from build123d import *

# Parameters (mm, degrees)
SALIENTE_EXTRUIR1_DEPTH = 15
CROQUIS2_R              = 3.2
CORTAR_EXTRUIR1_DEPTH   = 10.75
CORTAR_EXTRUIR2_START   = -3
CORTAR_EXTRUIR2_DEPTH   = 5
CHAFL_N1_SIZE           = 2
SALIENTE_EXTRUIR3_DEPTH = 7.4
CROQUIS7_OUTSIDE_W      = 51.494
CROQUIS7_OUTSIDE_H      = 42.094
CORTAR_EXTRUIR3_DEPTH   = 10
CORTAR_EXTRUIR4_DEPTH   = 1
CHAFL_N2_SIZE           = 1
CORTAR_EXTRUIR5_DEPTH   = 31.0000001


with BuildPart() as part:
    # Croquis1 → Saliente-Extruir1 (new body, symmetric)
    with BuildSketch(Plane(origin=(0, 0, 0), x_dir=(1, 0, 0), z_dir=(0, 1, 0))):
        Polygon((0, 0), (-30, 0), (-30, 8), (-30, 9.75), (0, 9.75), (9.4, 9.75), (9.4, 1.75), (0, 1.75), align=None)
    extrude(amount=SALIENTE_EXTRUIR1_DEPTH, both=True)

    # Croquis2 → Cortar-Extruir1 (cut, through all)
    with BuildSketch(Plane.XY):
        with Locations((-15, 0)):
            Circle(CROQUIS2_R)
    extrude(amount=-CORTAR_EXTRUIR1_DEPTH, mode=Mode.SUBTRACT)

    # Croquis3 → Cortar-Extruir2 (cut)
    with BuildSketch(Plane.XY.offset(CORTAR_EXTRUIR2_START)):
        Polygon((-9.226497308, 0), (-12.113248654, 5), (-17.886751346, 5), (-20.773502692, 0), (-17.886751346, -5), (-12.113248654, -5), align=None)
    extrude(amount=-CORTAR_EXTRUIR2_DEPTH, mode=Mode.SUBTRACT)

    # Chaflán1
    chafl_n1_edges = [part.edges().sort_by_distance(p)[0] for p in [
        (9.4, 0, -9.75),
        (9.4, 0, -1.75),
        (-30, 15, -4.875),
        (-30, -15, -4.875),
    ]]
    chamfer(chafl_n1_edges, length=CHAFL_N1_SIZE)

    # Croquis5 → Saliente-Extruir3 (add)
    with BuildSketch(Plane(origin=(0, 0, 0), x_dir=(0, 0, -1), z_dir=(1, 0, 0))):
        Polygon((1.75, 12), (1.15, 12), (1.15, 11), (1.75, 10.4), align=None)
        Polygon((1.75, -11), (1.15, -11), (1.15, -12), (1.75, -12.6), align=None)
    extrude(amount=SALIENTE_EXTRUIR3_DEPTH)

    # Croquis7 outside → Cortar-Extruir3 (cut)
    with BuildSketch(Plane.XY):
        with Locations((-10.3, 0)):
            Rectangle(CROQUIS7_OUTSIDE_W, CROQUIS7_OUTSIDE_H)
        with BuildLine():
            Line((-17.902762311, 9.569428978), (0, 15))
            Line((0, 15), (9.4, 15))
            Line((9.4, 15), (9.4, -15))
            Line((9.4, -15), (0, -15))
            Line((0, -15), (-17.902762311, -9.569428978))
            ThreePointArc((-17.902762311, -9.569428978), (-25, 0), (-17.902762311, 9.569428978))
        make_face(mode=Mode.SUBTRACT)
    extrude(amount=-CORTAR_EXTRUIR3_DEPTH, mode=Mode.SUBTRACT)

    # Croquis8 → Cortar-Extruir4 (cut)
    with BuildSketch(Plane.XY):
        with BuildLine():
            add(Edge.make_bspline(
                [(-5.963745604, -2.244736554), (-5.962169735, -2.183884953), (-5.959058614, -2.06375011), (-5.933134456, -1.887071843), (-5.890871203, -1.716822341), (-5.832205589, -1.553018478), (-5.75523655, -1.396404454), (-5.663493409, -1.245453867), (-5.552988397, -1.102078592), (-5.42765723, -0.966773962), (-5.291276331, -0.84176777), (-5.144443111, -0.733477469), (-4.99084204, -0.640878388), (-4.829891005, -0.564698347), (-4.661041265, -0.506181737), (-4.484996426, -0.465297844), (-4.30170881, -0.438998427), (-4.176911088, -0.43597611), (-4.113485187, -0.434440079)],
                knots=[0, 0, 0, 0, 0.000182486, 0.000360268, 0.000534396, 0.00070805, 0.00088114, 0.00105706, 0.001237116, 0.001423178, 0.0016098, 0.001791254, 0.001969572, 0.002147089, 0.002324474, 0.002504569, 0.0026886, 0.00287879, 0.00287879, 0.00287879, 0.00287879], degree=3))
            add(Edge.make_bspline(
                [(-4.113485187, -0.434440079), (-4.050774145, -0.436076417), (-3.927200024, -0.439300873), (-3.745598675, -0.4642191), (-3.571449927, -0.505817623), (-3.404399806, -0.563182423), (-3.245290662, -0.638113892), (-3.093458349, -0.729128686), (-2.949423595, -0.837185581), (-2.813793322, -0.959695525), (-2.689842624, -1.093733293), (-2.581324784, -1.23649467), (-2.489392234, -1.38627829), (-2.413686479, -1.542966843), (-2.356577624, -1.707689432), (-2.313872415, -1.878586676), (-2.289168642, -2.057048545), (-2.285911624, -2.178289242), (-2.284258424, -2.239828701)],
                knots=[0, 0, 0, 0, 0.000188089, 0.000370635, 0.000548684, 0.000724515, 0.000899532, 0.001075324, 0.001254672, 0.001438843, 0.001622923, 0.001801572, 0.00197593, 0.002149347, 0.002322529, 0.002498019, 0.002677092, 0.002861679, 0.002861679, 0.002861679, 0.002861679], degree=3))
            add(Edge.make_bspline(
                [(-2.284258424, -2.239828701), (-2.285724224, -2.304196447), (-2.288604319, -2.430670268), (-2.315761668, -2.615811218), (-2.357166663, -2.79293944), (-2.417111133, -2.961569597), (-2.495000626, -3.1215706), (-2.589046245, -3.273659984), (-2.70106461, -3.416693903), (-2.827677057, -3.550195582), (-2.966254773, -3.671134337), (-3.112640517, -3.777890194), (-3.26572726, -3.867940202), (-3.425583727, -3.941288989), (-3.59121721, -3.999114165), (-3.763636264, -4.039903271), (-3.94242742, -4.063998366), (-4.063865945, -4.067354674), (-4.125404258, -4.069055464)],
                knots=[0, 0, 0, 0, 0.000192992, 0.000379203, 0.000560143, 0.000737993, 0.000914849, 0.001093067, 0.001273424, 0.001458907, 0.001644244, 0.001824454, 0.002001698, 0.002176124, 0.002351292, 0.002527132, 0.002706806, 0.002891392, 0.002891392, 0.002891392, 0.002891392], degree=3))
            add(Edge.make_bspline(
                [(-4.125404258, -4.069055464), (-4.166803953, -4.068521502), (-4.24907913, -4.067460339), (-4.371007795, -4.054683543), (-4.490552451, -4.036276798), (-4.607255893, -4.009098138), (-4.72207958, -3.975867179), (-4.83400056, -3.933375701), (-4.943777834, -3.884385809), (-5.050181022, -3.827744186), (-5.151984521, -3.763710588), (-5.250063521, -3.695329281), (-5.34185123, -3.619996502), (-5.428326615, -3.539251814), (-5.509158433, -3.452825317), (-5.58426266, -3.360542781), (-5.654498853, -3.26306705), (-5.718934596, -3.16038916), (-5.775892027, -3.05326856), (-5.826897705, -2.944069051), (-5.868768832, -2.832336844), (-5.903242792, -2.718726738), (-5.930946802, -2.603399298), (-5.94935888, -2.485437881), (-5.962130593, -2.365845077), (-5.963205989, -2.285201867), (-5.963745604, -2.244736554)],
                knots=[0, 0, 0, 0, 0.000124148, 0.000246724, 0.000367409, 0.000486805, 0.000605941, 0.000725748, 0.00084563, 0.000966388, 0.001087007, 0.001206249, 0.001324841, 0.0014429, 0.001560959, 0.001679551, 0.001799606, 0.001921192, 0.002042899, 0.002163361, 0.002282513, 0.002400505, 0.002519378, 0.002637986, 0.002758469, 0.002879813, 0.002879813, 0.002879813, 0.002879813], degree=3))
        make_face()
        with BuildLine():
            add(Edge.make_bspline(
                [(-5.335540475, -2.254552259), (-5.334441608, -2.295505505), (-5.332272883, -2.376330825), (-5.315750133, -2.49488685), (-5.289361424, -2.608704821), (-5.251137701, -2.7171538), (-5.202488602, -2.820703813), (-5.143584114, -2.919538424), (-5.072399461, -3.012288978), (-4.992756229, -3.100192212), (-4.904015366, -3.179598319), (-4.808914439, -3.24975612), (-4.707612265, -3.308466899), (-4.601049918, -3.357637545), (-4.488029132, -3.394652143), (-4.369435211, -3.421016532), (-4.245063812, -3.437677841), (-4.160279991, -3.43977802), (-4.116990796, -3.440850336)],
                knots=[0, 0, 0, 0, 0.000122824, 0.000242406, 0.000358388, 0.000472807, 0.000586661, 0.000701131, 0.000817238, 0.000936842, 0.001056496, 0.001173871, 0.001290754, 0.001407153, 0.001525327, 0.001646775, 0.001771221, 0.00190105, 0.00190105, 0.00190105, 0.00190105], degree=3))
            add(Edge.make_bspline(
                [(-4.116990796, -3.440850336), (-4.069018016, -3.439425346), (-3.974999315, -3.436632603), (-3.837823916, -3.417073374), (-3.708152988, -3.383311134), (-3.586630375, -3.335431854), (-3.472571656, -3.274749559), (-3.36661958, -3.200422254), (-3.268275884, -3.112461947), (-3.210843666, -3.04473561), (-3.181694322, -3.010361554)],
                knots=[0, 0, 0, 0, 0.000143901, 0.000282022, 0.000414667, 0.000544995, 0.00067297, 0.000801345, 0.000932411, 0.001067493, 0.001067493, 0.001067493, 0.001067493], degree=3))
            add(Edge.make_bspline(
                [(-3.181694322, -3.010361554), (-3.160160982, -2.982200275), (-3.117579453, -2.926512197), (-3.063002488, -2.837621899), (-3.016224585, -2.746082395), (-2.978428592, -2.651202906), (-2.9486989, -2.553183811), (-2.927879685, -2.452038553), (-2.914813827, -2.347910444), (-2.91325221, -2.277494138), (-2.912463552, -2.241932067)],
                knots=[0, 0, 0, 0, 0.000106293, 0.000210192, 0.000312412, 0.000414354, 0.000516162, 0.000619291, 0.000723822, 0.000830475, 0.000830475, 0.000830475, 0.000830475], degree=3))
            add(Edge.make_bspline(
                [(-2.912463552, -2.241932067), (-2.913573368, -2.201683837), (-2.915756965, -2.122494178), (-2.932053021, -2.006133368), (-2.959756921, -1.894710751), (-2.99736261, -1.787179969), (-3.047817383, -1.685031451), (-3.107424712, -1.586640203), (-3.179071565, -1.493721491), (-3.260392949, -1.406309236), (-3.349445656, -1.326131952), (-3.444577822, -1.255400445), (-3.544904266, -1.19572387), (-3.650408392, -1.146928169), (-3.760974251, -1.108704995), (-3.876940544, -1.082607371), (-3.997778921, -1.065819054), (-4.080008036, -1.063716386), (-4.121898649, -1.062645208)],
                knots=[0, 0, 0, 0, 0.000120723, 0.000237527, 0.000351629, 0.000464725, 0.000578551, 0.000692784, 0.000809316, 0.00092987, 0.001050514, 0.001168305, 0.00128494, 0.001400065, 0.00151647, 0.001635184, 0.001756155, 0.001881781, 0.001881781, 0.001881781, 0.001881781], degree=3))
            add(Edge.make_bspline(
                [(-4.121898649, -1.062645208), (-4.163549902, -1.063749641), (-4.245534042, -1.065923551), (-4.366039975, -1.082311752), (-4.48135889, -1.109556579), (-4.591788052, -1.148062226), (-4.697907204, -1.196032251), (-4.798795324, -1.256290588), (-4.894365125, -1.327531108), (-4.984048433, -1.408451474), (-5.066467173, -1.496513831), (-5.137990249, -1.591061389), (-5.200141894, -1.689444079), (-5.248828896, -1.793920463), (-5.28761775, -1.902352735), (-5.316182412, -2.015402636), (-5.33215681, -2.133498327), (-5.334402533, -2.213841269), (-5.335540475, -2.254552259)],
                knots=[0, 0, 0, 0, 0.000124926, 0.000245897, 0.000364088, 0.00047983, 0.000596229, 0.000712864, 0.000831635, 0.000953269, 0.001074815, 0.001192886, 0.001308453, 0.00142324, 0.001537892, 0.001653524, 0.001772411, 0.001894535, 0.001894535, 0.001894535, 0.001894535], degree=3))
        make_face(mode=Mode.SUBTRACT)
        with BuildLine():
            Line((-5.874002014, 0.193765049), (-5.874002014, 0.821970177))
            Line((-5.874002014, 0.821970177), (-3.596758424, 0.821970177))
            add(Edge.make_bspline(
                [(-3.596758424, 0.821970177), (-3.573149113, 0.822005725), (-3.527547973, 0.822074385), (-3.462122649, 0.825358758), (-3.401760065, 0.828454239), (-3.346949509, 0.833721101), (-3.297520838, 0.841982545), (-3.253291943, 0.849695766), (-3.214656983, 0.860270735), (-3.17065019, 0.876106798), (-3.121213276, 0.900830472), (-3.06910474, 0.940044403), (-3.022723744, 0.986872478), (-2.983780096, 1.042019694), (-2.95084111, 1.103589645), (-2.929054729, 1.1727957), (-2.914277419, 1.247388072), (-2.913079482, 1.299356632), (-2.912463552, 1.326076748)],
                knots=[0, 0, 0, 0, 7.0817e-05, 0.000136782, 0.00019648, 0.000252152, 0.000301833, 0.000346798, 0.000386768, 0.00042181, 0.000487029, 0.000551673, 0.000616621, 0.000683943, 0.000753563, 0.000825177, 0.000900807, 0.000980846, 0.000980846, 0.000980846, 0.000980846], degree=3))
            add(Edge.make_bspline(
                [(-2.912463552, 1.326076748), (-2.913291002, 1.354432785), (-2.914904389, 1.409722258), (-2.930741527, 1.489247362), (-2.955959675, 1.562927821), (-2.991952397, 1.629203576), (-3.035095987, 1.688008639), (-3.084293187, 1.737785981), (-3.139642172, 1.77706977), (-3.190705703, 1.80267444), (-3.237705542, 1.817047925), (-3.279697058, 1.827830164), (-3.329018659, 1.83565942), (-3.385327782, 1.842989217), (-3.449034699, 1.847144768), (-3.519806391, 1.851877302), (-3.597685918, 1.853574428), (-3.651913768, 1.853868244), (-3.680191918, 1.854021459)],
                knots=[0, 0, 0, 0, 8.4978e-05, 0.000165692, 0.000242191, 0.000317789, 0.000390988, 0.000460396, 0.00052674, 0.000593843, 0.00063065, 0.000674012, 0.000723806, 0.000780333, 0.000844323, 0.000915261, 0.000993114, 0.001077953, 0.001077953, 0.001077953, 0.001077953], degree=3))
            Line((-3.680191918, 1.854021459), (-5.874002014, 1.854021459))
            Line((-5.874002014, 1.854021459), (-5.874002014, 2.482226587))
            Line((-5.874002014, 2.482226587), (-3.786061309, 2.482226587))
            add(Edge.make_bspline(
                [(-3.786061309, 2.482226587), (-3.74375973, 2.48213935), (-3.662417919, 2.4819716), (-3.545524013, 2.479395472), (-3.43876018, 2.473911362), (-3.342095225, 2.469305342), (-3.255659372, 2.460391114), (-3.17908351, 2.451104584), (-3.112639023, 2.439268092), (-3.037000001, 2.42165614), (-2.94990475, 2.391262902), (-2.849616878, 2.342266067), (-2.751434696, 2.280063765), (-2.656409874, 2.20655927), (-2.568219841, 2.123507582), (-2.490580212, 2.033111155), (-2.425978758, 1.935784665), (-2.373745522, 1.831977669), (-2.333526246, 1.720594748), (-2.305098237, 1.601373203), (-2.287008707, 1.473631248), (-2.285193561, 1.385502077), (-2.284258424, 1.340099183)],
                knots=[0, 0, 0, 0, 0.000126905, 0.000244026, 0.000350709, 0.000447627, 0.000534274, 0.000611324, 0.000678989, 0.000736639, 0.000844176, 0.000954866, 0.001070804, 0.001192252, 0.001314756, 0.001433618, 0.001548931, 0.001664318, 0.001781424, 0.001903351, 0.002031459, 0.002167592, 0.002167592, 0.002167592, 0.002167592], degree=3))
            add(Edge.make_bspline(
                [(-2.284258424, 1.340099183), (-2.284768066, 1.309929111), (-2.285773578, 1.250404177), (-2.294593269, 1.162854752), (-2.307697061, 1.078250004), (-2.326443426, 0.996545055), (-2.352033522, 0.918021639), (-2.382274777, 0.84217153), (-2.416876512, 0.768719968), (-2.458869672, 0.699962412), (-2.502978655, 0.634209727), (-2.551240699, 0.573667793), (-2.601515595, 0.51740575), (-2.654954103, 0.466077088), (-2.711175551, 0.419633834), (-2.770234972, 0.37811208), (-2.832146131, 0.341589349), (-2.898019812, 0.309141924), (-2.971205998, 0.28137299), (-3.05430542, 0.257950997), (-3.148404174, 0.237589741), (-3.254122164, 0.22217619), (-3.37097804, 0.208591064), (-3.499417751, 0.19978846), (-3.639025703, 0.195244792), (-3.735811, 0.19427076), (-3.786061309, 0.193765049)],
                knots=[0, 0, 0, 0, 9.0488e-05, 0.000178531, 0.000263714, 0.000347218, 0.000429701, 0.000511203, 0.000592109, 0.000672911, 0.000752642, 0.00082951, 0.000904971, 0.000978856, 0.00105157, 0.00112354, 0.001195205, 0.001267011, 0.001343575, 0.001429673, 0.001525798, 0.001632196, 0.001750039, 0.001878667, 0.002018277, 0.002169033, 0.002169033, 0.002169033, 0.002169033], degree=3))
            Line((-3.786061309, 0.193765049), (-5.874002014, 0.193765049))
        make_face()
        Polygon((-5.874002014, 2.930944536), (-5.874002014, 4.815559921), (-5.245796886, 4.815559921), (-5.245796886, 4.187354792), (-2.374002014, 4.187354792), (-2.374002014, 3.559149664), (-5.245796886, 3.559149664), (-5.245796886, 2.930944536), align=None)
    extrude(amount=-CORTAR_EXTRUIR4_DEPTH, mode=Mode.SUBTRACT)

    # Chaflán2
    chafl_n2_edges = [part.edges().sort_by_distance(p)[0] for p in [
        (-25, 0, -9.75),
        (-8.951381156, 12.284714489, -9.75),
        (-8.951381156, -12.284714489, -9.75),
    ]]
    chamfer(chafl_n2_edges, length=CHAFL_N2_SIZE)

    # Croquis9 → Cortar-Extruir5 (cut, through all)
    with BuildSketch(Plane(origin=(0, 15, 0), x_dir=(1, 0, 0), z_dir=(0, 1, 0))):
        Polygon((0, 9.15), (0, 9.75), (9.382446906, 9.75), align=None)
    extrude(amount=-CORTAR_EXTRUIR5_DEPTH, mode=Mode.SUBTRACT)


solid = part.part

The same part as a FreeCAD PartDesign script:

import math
import FreeCAD as App
import Part
import Sketcher

V = App.Vector
Q = App.Units.Quantity


def edges_at(feature, points):
    """Names of the edges that pass closest to the given points."""
    edges = feature.Shape.Edges
    near = lambda p: min(range(len(edges)), key=lambda i: edges[i].distToShape(Part.Vertex(*p))[0])
    return sorted({f"Edge{near(p) + 1}" for p in points})

doc = App.newDocument("Part")
params = doc.addObject("Spreadsheet::Sheet", "Params")
for row, (alias, value) in enumerate([
    ("sketch1_width", "30 mm"),
    ("sketch1_height", "8 mm"),
    ("sketch1_width2", "9.4 mm"),
    ("sketch1_height2", "1.75 mm"),
    ("pad1_length", "30 mm"),
    ("sketch2_diameter", "6.4 mm"),
    ("pocket2_length", "5 mm"),
    ("chamfer_size", "2 mm"),
    ("sketch4_width", "1 mm"),
    ("sketch4_width2", "1.6 mm"),
    ("pad2_length", "7.4 mm"),
    ("sketch5_radius", "10 mm"),
    ("sketch5_height", "30 mm"),
    ("sketch5_width", "9.4 mm"),
    ("pocket3_length", "10 mm"),
    ("pocket4_length", "1 mm"),
    ("chamfer2_size", "1 mm"),
    ("sketch7_height", "0.6 mm"),
], start=1):
    params.set(f"A{row}", alias)
    params.set(f"B{row}", "=" + value)
    params.setAlias(f"B{row}", alias)

body = doc.addObject("PartDesign::Body", "Body")

sketch1 = doc.addObject("Sketcher::SketchObject", "Sketch")
body.addObject(sketch1)
sketch1.AttachmentSupport = (doc.XZ_Plane, [""])
sketch1.MapMode = "FlatFace"
sketch1.addGeometry(Part.LineSegment(V(-30, 0, 0), V(0, 0, 0)), False)
sketch1.addGeometry(Part.LineSegment(V(0, 0, 0), V(0, -1.8, 0)), False)
sketch1.addGeometry(Part.LineSegment(V(0, -1.8, 0), V(9.4, -1.8, 0)), False)
sketch1.addGeometry(Part.LineSegment(V(9.4, -1.8, 0), V(9.4, -9.8, 0)), False)
sketch1.addGeometry(Part.LineSegment(V(9.4, -9.8, 0), V(-30, -9.8, 0)), False)
sketch1.addGeometry(Part.LineSegment(V(-30, -9.8, 0), V(-30, 0, 0)), False)
sketch1.addConstraint(Sketcher.Constraint("Coincident", 0, 2, 1, 1))
sketch1.addConstraint(Sketcher.Constraint("Coincident", 1, 2, 2, 1))
sketch1.addConstraint(Sketcher.Constraint("Coincident", 2, 2, 3, 1))
sketch1.addConstraint(Sketcher.Constraint("Coincident", 3, 2, 4, 1))
sketch1.addConstraint(Sketcher.Constraint("Coincident", 4, 2, 5, 1))
sketch1.addConstraint(Sketcher.Constraint("Coincident", 5, 2, 0, 1))
sketch1.addConstraint(Sketcher.Constraint("Horizontal", 0))
sketch1.addConstraint(Sketcher.Constraint("Vertical", 1))
sketch1.addConstraint(Sketcher.Constraint("Horizontal", 2))
sketch1.addConstraint(Sketcher.Constraint("Vertical", 3))
sketch1.addConstraint(Sketcher.Constraint("Horizontal", 4))
sketch1.addConstraint(Sketcher.Constraint("Vertical", 5))
sketch1.addConstraint(Sketcher.Constraint("Coincident", 0, 2, -1, 1))
sketch1.addConstraint(Sketcher.Constraint("DistanceX", 0, 1, 0, 2, Q("30 mm")))
sketch1.addConstraint(Sketcher.Constraint("DistanceY", 3, 2, 3, 1, Q("8 mm")))
sketch1.addConstraint(Sketcher.Constraint("DistanceX", 2, 1, 2, 2, Q("9.4 mm")))
sketch1.addConstraint(Sketcher.Constraint("DistanceY", 1, 2, 1, 1, Q("1.75 mm")))
sketch1.setExpression("Constraints[13]", "Params.sketch1_width")
sketch1.setExpression("Constraints[14]", "Params.sketch1_height")
sketch1.setExpression("Constraints[15]", "Params.sketch1_width2")
sketch1.setExpression("Constraints[16]", "Params.sketch1_height2")
pad1 = doc.addObject("PartDesign::Pad", "Pad")
body.addObject(pad1)
pad1.Profile = sketch1
pad1.setExpression("Length", "Params.pad1_length")
pad1.Midplane = True

sketch2 = doc.addObject("Sketcher::SketchObject", "Sketch001")
body.addObject(sketch2)
sketch2.AttachmentSupport = (doc.XY_Plane, [""])
sketch2.MapMode = "FlatFace"
sketch2.addGeometry(Part.Circle(V(-15, 0, 0), V(0, 0, 1), 3.2), False)
sketch2.addConstraint(Sketcher.Constraint("PointOnObject", 0, 3, -1))
sketch2.addConstraint(Sketcher.Constraint("Diameter", 0, Q("6.4 mm")))
sketch2.addConstraint(Sketcher.Constraint("DistanceX", 0, 3, -1, 1, Q("15 mm")))
sketch2.setExpression("Constraints[1]", "Params.sketch2_diameter")
pocket1 = doc.addObject("PartDesign::Pocket", "Pocket")
body.addObject(pocket1)
pocket1.Profile = sketch2
pocket1.Type = "ThroughAll"

sketch3 = doc.addObject("Sketcher::SketchObject", "Sketch002")
body.addObject(sketch3)
sketch3.AttachmentSupport = (doc.XY_Plane, [""])
sketch3.MapMode = "FlatFace"
sketch3.AttachmentOffset = App.Placement(V(0, 0, -3), App.Rotation())
sketch3.addGeometry(Part.LineSegment(V(-9, 0, 0), V(-12, 5, 0)), False)
sketch3.addGeometry(Part.LineSegment(V(-12, 5, 0), V(-18, 5, 0)), False)
sketch3.addGeometry(Part.LineSegment(V(-18, 5, 0), V(-21, 0, 0)), False)
sketch3.addGeometry(Part.LineSegment(V(-21, 0, 0), V(-18, -5, 0)), False)
sketch3.addGeometry(Part.LineSegment(V(-18, -5, 0), V(-12, -5, 0)), False)
sketch3.addGeometry(Part.LineSegment(V(-12, -5, 0), V(-9, 0, 0)), False)
sketch3.addConstraint(Sketcher.Constraint("Coincident", 0, 2, 1, 1))
sketch3.addConstraint(Sketcher.Constraint("Coincident", 1, 2, 2, 1))
sketch3.addConstraint(Sketcher.Constraint("Coincident", 2, 2, 3, 1))
sketch3.addConstraint(Sketcher.Constraint("Coincident", 3, 2, 4, 1))
sketch3.addConstraint(Sketcher.Constraint("Coincident", 4, 2, 5, 1))
sketch3.addConstraint(Sketcher.Constraint("Coincident", 5, 2, 0, 1))
sketch3.addConstraint(Sketcher.Constraint("Horizontal", 1))
sketch3.addConstraint(Sketcher.Constraint("Horizontal", 4))
sketch3.addConstraint(Sketcher.Constraint("Symmetric", 1, 2, 3, 2, -1))
sketch3.addConstraint(Sketcher.Constraint("PointOnObject", 2, 2, -1))
sketch3.addConstraint(Sketcher.Constraint("PointOnObject", 5, 2, -1))
sketch3.addConstraint(Sketcher.Constraint("Parallel", 0, 3))
sketch3.addConstraint(Sketcher.Constraint("Parallel", 2, 5))
sketch3.addConstraint(Sketcher.Constraint("Angle", 0, Q("120 deg")))
sketch3.addConstraint(Sketcher.Constraint("DistanceY", -1, 1, 0, 2, Q("5 mm")))
sketch3.addConstraint(Sketcher.Constraint("DistanceX", 1, 2, 1, 1, Q("5.773503 mm")))
sketch3.addConstraint(Sketcher.Constraint("DistanceX", 0, 2, -1, 1, Q("12.113249 mm")))
pocket2 = doc.addObject("PartDesign::Pocket", "Pocket001")
body.addObject(pocket2)
pocket2.Profile = sketch3
pocket2.setExpression("Length", "Params.pocket2_length")
doc.recompute()

chamfer = doc.addObject("PartDesign::Chamfer", "Chamfer")
body.addObject(chamfer)
chamfer.Base = (pocket2, edges_at(pocket2, [
    (9.4, 0, -9.75),
    (9.4, 0, -1.75),
    (-30, 15, -4.875),
    (-30, -15, -4.875),
]))
chamfer.setExpression("Size", "Params.chamfer_size")

sketch4 = doc.addObject("Sketcher::SketchObject", "Sketch003")
body.addObject(sketch4)
sketch4.AttachmentSupport = (doc.YZ_Plane, [""])
sketch4.MapMode = "FlatFace"
sketch4.addGeometry(Part.LineSegment(V(12, -1.8, 0), V(12, -1.1, 0)), False)
sketch4.addGeometry(Part.LineSegment(V(12, -1.1, 0), V(11, -1.1, 0)), False)
sketch4.addGeometry(Part.LineSegment(V(11, -1.1, 0), V(10.4, -1.8, 0)), False)
sketch4.addGeometry(Part.LineSegment(V(10.4, -1.8, 0), V(12, -1.8, 0)), False)
sketch4.addGeometry(Part.LineSegment(V(-11, -1.8, 0), V(-11, -1.1, 0)), False)
sketch4.addGeometry(Part.LineSegment(V(-11, -1.1, 0), V(-12, -1.1, 0)), False)
sketch4.addGeometry(Part.LineSegment(V(-12, -1.1, 0), V(-12.6, -1.8, 0)), False)
sketch4.addGeometry(Part.LineSegment(V(-12.6, -1.8, 0), V(-11, -1.8, 0)), False)
sketch4.addConstraint(Sketcher.Constraint("Coincident", 0, 2, 1, 1))
sketch4.addConstraint(Sketcher.Constraint("Coincident", 1, 2, 2, 1))
sketch4.addConstraint(Sketcher.Constraint("Coincident", 2, 2, 3, 1))
sketch4.addConstraint(Sketcher.Constraint("Coincident", 3, 2, 0, 1))
sketch4.addConstraint(Sketcher.Constraint("Coincident", 4, 2, 5, 1))
sketch4.addConstraint(Sketcher.Constraint("Coincident", 5, 2, 6, 1))
sketch4.addConstraint(Sketcher.Constraint("Coincident", 6, 2, 7, 1))
sketch4.addConstraint(Sketcher.Constraint("Coincident", 7, 2, 4, 1))
sketch4.addConstraint(Sketcher.Constraint("Vertical", 0))
sketch4.addConstraint(Sketcher.Constraint("Horizontal", 1))
sketch4.addConstraint(Sketcher.Constraint("Horizontal", 3))
sketch4.addConstraint(Sketcher.Constraint("Vertical", 4))
sketch4.addConstraint(Sketcher.Constraint("Horizontal", 5))
sketch4.addConstraint(Sketcher.Constraint("Horizontal", 7))
sketch4.addConstraint(Sketcher.Constraint("Symmetric", 1, 2, 4, 2, -2))
sketch4.addConstraint(Sketcher.Constraint("Parallel", 2, 6))
sketch4.addConstraint(Sketcher.Constraint("Horizontal", 3, 2, 6, 2))
sketch4.addConstraint(Sketcher.Constraint("Equal", 1, 5))
sketch4.addConstraint(Sketcher.Constraint("DistanceX", 1, 2, 1, 1, Q("1 mm")))
sketch4.addConstraint(Sketcher.Constraint("Angle", 2, Q("-135 deg")))
sketch4.addConstraint(Sketcher.Constraint("DistanceX", 3, 1, 3, 2, Q("1.6 mm")))
sketch4.addConstraint(Sketcher.Constraint("DistanceX", -1, 1, 0, 2, Q("12 mm")))
sketch4.addConstraint(Sketcher.Constraint("DistanceY", 0, 2, -1, 1, Q("1.15 mm")))
sketch4.setExpression("Constraints[18]", "Params.sketch4_width")
sketch4.setExpression("Constraints[20]", "Params.sketch4_width2")
pad2 = doc.addObject("PartDesign::Pad", "Pad001")
body.addObject(pad2)
pad2.Profile = sketch4
pad2.setExpression("Length", "Params.pad2_length")

sketch5 = doc.addObject("Sketcher::SketchObject", "Sketch004")
body.addObject(sketch5)
sketch5.AttachmentSupport = (doc.XY_Plane, [""])
sketch5.MapMode = "FlatFace"
sketch5.addGeometry(Part.LineSegment(V(-36, 21, 0), V(-36, -21, 0)), False)
sketch5.addGeometry(Part.LineSegment(V(-36, -21, 0), V(15, -21, 0)), False)
sketch5.addGeometry(Part.LineSegment(V(15, -21, 0), V(15, 21, 0)), False)
sketch5.addGeometry(Part.LineSegment(V(15, 21, 0), V(-36, 21, 0)), False)
sketch5.addGeometry(Part.ArcOfCircle(Part.Circle(V(-15, 0, 0), V(0, 0, 1), 10), math.radians(107), math.radians(253)), False)
sketch5.addGeometry(Part.LineSegment(V(-18, 10, 0), V(0, 15, 0)), False)
sketch5.addGeometry(Part.LineSegment(V(0, 15, 0), V(9, 15, 0)), False)
sketch5.addGeometry(Part.LineSegment(V(9, 15, 0), V(9, -15, 0)), False)
sketch5.addGeometry(Part.LineSegment(V(9, -15, 0), V(0, -15, 0)), False)
sketch5.addGeometry(Part.LineSegment(V(0, -15, 0), V(-18, -10, 0)), False)
sketch5.addConstraint(Sketcher.Constraint("Coincident", 0, 2, 1, 1))
sketch5.addConstraint(Sketcher.Constraint("Coincident", 1, 2, 2, 1))
sketch5.addConstraint(Sketcher.Constraint("Coincident", 2, 2, 3, 1))
sketch5.addConstraint(Sketcher.Constraint("Coincident", 3, 2, 0, 1))
sketch5.addConstraint(Sketcher.Constraint("Tangent", 4, 1, 5, 1))
sketch5.addConstraint(Sketcher.Constraint("Coincident", 5, 2, 6, 1))
sketch5.addConstraint(Sketcher.Constraint("Coincident", 6, 2, 7, 1))
sketch5.addConstraint(Sketcher.Constraint("Coincident", 7, 2, 8, 1))
sketch5.addConstraint(Sketcher.Constraint("Coincident", 8, 2, 9, 1))
sketch5.addConstraint(Sketcher.Constraint("Tangent", 9, 2, 4, 2))
sketch5.addConstraint(Sketcher.Constraint("Vertical", 0))
sketch5.addConstraint(Sketcher.Constraint("Horizontal", 1))
sketch5.addConstraint(Sketcher.Constraint("Vertical", 2))
sketch5.addConstraint(Sketcher.Constraint("Horizontal", 3))
sketch5.addConstraint(Sketcher.Constraint("Horizontal", 6))
sketch5.addConstraint(Sketcher.Constraint("Vertical", 7))
sketch5.addConstraint(Sketcher.Constraint("Horizontal", 8))
sketch5.addConstraint(Sketcher.Constraint("Symmetric", 5, 2, 8, 2, -1, 1))
sketch5.addConstraint(Sketcher.Constraint("Symmetric", 4, 1, 9, 2, -1))
sketch5.addConstraint(Sketcher.Constraint("Radius", 4, Q("10 mm")))
sketch5.addConstraint(Sketcher.Constraint("DistanceY", 7, 2, 7, 1, Q("30 mm")))
sketch5.addConstraint(Sketcher.Constraint("DistanceX", 6, 1, 6, 2, Q("9.4 mm")))
sketch5.addConstraint(Sketcher.Constraint("DistanceX", 4, 3, -1, 1, Q("15 mm")))
sketch5.addConstraint(Sketcher.Constraint("DistanceX", 1, 1, 1, 2, Q("51.494 mm")))
sketch5.addConstraint(Sketcher.Constraint("DistanceY", 0, 2, 0, 1, Q("42.094 mm")))
sketch5.addConstraint(Sketcher.Constraint("DistanceX", 0, 2, -1, 1, Q("36.047 mm")))
sketch5.addConstraint(Sketcher.Constraint("DistanceY", 0, 2, -1, 1, Q("21.047 mm")))
sketch5.setExpression("Constraints[19]", "Params.sketch5_radius")
sketch5.setExpression("Constraints[20]", "Params.sketch5_height")
sketch5.setExpression("Constraints[21]", "Params.sketch5_width")
pocket3 = doc.addObject("PartDesign::Pocket", "Pocket002")
body.addObject(pocket3)
pocket3.Profile = sketch5
pocket3.setExpression("Length", "Params.pocket3_length")

sketch6 = doc.addObject("Sketcher::SketchObject", "Sketch005")
body.addObject(sketch6)
sketch6.AttachmentSupport = (doc.XY_Plane, [""])
sketch6.MapMode = "FlatFace"
sketch6.addGeometry(Part.BSplineCurve([V(-5.963746, -2.244737, 0), V(-5.96217, -2.183885, 0), V(-5.959059, -2.06375, 0), V(-5.933134, -1.887072, 0), V(-5.890871, -1.716822, 0), V(-5.832206, -1.553018, 0), V(-5.755237, -1.396404, 0), V(-5.663493, -1.245454, 0), V(-5.552988, -1.102079, 0), V(-5.427657, -0.966774, 0), V(-5.291276, -0.841768, 0), V(-5.144443, -0.733477, 0), V(-4.990842, -0.640878, 0), V(-4.829891, -0.564698, 0), V(-4.661041, -0.506182, 0), V(-4.484996, -0.465298, 0), V(-4.301709, -0.438998, 0), V(-4.176911, -0.435976, 0), V(-4.113485, -0.43444, 0)], [4, 1, 1, 1, 1, 1, 1, 1, 1, 1, 1, 1, 1, 1, 1, 1, 4], [0, 0.000182486, 0.000360268, 0.000534396, 0.00070805, 0.00088114, 0.00105706, 0.001237116, 0.001423178, 0.0016098, 0.001791254, 0.001969572, 0.002147089, 0.002324474, 0.002504569, 0.0026886, 0.00287879], False, 3, [1, 1, 1, 1, 1, 1, 1, 1, 1, 1, 1, 1, 1, 1, 1, 1, 1, 1, 1], False), False)
sketch6.addGeometry(Part.BSplineCurve([V(-4.125404, -4.069055, 0), V(-4.166804, -4.068522, 0), V(-4.249079, -4.06746, 0), V(-4.371008, -4.054684, 0), V(-4.490552, -4.036277, 0), V(-4.607256, -4.009098, 0), V(-4.72208, -3.975867, 0), V(-4.834001, -3.933376, 0), V(-4.943778, -3.884386, 0), V(-5.050181, -3.827744, 0), V(-5.151985, -3.763711, 0), V(-5.250064, -3.695329, 0), V(-5.341851, -3.619997, 0), V(-5.428327, -3.539252, 0), V(-5.509158, -3.452825, 0), V(-5.584263, -3.360543, 0), V(-5.654499, -3.263067, 0), V(-5.718935, -3.160389, 0), V(-5.775892, -3.053269, 0), V(-5.826898, -2.944069, 0), V(-5.868769, -2.832337, 0), V(-5.903243, -2.718727, 0), V(-5.930947, -2.603399, 0), V(-5.949359, -2.485438, 0), V(-5.962131, -2.365845, 0), V(-5.963206, -2.285202, 0), V(-5.963746, -2.244737, 0)], [4, 1, 1, 1, 1, 1, 1, 1, 1, 1, 1, 1, 1, 1, 1, 1, 1, 1, 1, 1, 1, 1, 1, 1, 4], [0, 0.000124148, 0.000246724, 0.000367409, 0.000486805, 0.000605941, 0.000725748, 0.00084563, 0.000966388, 0.001087007, 0.001206249, 0.001324841, 0.0014429, 0.001560959, 0.001679551, 0.001799606, 0.001921192, 0.002042899, 0.002163361, 0.002282513, 0.002400505, 0.002519378, 0.002637986, 0.002758469, 0.002879813], False, 3, [1, 1, 1, 1, 1, 1, 1, 1, 1, 1, 1, 1, 1, 1, 1, 1, 1, 1, 1, 1, 1, 1, 1, 1, 1, 1, 1], False), False)
sketch6.addGeometry(Part.BSplineCurve([V(-2.284258, -2.239829, 0), V(-2.285724, -2.304196, 0), V(-2.288604, -2.43067, 0), V(-2.315762, -2.615811, 0), V(-2.357167, -2.792939, 0), V(-2.417111, -2.96157, 0), V(-2.495001, -3.121571, 0), V(-2.589046, -3.27366, 0), V(-2.701065, -3.416694, 0), V(-2.827677, -3.550196, 0), V(-2.966255, -3.671134, 0), V(-3.112641, -3.77789, 0), V(-3.265727, -3.86794, 0), V(-3.425584, -3.941289, 0), V(-3.591217, -3.999114, 0), V(-3.763636, -4.039903, 0), V(-3.942427, -4.063998, 0), V(-4.063866, -4.067355, 0), V(-4.125404, -4.069055, 0)], [4, 1, 1, 1, 1, 1, 1, 1, 1, 1, 1, 1, 1, 1, 1, 1, 4], [0, 0.000192992, 0.000379203, 0.000560143, 0.000737993, 0.000914849, 0.001093067, 0.001273424, 0.001458907, 0.001644244, 0.001824454, 0.002001698, 0.002176124, 0.002351292, 0.002527132, 0.002706806, 0.002891392], False, 3, [1, 1, 1, 1, 1, 1, 1, 1, 1, 1, 1, 1, 1, 1, 1, 1, 1, 1, 1], False), False)
sketch6.addGeometry(Part.BSplineCurve([V(-4.113485, -0.43444, 0), V(-4.050774, -0.436076, 0), V(-3.9272, -0.439301, 0), V(-3.745599, -0.464219, 0), V(-3.57145, -0.505818, 0), V(-3.4044, -0.563182, 0), V(-3.245291, -0.638114, 0), V(-3.093458, -0.729129, 0), V(-2.949424, -0.837186, 0), V(-2.813793, -0.959696, 0), V(-2.689843, -1.093733, 0), V(-2.581325, -1.236495, 0), V(-2.489392, -1.386278, 0), V(-2.413686, -1.542967, 0), V(-2.356578, -1.707689, 0), V(-2.313872, -1.878587, 0), V(-2.289169, -2.057049, 0), V(-2.285912, -2.178289, 0), V(-2.284258, -2.239829, 0)], [4, 1, 1, 1, 1, 1, 1, 1, 1, 1, 1, 1, 1, 1, 1, 1, 4], [0, 0.000188089, 0.000370635, 0.000548684, 0.000724515, 0.000899532, 0.001075324, 0.001254672, 0.001438843, 0.001622923, 0.001801572, 0.00197593, 0.002149347, 0.002322529, 0.002498019, 0.002677092, 0.002861679], False, 3, [1, 1, 1, 1, 1, 1, 1, 1, 1, 1, 1, 1, 1, 1, 1, 1, 1, 1, 1], False), False)
sketch6.addGeometry(Part.BSplineCurve([V(-4.121899, -1.062645, 0), V(-4.16355, -1.06375, 0), V(-4.245534, -1.065924, 0), V(-4.36604, -1.082312, 0), V(-4.481359, -1.109557, 0), V(-4.591788, -1.148062, 0), V(-4.697907, -1.196032, 0), V(-4.798795, -1.256291, 0), V(-4.894365, -1.327531, 0), V(-4.984048, -1.408451, 0), V(-5.066467, -1.496514, 0), V(-5.13799, -1.591061, 0), V(-5.200142, -1.689444, 0), V(-5.248829, -1.79392, 0), V(-5.287618, -1.902353, 0), V(-5.316182, -2.015403, 0), V(-5.332157, -2.133498, 0), V(-5.334403, -2.213841, 0), V(-5.33554, -2.254552, 0)], [4, 1, 1, 1, 1, 1, 1, 1, 1, 1, 1, 1, 1, 1, 1, 1, 4], [0, 0.000124926, 0.000245897, 0.000364088, 0.00047983, 0.000596229, 0.000712864, 0.000831635, 0.000953269, 0.001074815, 0.001192886, 0.001308453, 0.00142324, 0.001537892, 0.001653524, 0.001772411, 0.001894535], False, 3, [1, 1, 1, 1, 1, 1, 1, 1, 1, 1, 1, 1, 1, 1, 1, 1, 1, 1, 1], False), False)
sketch6.addGeometry(Part.BSplineCurve([V(-2.912464, -2.241932, 0), V(-2.913573, -2.201684, 0), V(-2.915757, -2.122494, 0), V(-2.932053, -2.006133, 0), V(-2.959757, -1.894711, 0), V(-2.997363, -1.78718, 0), V(-3.047817, -1.685031, 0), V(-3.107425, -1.58664, 0), V(-3.179072, -1.493721, 0), V(-3.260393, -1.406309, 0), V(-3.349446, -1.326132, 0), V(-3.444578, -1.2554, 0), V(-3.544904, -1.195724, 0), V(-3.650408, -1.146928, 0), V(-3.760974, -1.108705, 0), V(-3.876941, -1.082607, 0), V(-3.997779, -1.065819, 0), V(-4.080008, -1.063716, 0), V(-4.121899, -1.062645, 0)], [4, 1, 1, 1, 1, 1, 1, 1, 1, 1, 1, 1, 1, 1, 1, 1, 4], [0, 0.000120723, 0.000237527, 0.000351629, 0.000464725, 0.000578551, 0.000692784, 0.000809316, 0.00092987, 0.001050514, 0.001168305, 0.00128494, 0.001400065, 0.00151647, 0.001635184, 0.001756155, 0.001881781], False, 3, [1, 1, 1, 1, 1, 1, 1, 1, 1, 1, 1, 1, 1, 1, 1, 1, 1, 1, 1], False), False)
sketch6.addGeometry(Part.BSplineCurve([V(-3.181694, -3.010362, 0), V(-3.160161, -2.9822, 0), V(-3.117579, -2.926512, 0), V(-3.063002, -2.837622, 0), V(-3.016225, -2.746082, 0), V(-2.978429, -2.651203, 0), V(-2.948699, -2.553184, 0), V(-2.92788, -2.452039, 0), V(-2.914814, -2.34791, 0), V(-2.913252, -2.277494, 0), V(-2.912464, -2.241932, 0)], [4, 1, 1, 1, 1, 1, 1, 1, 4], [0, 0.000106293, 0.000210192, 0.000312412, 0.000414354, 0.000516162, 0.000619291, 0.000723822, 0.000830475], False, 3, [1, 1, 1, 1, 1, 1, 1, 1, 1, 1, 1], False), False)
sketch6.addGeometry(Part.BSplineCurve([V(-4.116991, -3.44085, 0), V(-4.069018, -3.439425, 0), V(-3.974999, -3.436633, 0), V(-3.837824, -3.417073, 0), V(-3.708153, -3.383311, 0), V(-3.58663, -3.335432, 0), V(-3.472572, -3.27475, 0), V(-3.36662, -3.200422, 0), V(-3.268276, -3.112462, 0), V(-3.210844, -3.044736, 0), V(-3.181694, -3.010362, 0)], [4, 1, 1, 1, 1, 1, 1, 1, 4], [0, 0.000143901, 0.000282022, 0.000414667, 0.000544995, 0.00067297, 0.000801345, 0.000932411, 0.001067493], False, 3, [1, 1, 1, 1, 1, 1, 1, 1, 1, 1, 1], False), False)
sketch6.addGeometry(Part.BSplineCurve([V(-5.33554, -2.254552, 0), V(-5.334442, -2.295506, 0), V(-5.332273, -2.376331, 0), V(-5.31575, -2.494887, 0), V(-5.289361, -2.608705, 0), V(-5.251138, -2.717154, 0), V(-5.202489, -2.820704, 0), V(-5.143584, -2.919538, 0), V(-5.072399, -3.012289, 0), V(-4.992756, -3.100192, 0), V(-4.904015, -3.179598, 0), V(-4.808914, -3.249756, 0), V(-4.707612, -3.308467, 0), V(-4.60105, -3.357638, 0), V(-4.488029, -3.394652, 0), V(-4.369435, -3.421017, 0), V(-4.245064, -3.437678, 0), V(-4.16028, -3.439778, 0), V(-4.116991, -3.44085, 0)], [4, 1, 1, 1, 1, 1, 1, 1, 1, 1, 1, 1, 1, 1, 1, 1, 4], [0, 0.000122824, 0.000242406, 0.000358388, 0.000472807, 0.000586661, 0.000701131, 0.000817238, 0.000936842, 0.001056496, 0.001173871, 0.001290754, 0.001407153, 0.001525327, 0.001646775, 0.001771221, 0.00190105], False, 3, [1, 1, 1, 1, 1, 1, 1, 1, 1, 1, 1, 1, 1, 1, 1, 1, 1, 1, 1], False), False)
sketch6.addGeometry(Part.LineSegment(V(-5.874002, 0.82197, 0), V(-5.874002, 0.193765, 0)), False)
sketch6.addGeometry(Part.LineSegment(V(-5.874002, 0.193765, 0), V(-3.786061, 0.193765, 0)), False)
sketch6.addGeometry(Part.BSplineCurve([V(-2.284258, 1.340099, 0), V(-2.284768, 1.309929, 0), V(-2.285774, 1.250404, 0), V(-2.294593, 1.162855, 0), V(-2.307697, 1.07825, 0), V(-2.326443, 0.996545, 0), V(-2.352034, 0.918022, 0), V(-2.382275, 0.842172, 0), V(-2.416877, 0.76872, 0), V(-2.45887, 0.699962, 0), V(-2.502979, 0.63421, 0), V(-2.551241, 0.573668, 0), V(-2.601516, 0.517406, 0), V(-2.654954, 0.466077, 0), V(-2.711176, 0.419634, 0), V(-2.770235, 0.378112, 0), V(-2.832146, 0.341589, 0), V(-2.89802, 0.309142, 0), V(-2.971206, 0.281373, 0), V(-3.054305, 0.257951, 0), V(-3.148404, 0.23759, 0), V(-3.254122, 0.222176, 0), V(-3.370978, 0.208591, 0), V(-3.499418, 0.199788, 0), V(-3.639026, 0.195245, 0), V(-3.735811, 0.194271, 0), V(-3.786061, 0.193765, 0)], [4, 1, 1, 1, 1, 1, 1, 1, 1, 1, 1, 1, 1, 1, 1, 1, 1, 1, 1, 1, 1, 1, 1, 1, 4], [0, 0.000090488, 0.000178531, 0.000263714, 0.000347218, 0.000429701, 0.000511203, 0.000592109, 0.000672911, 0.000752642, 0.00082951, 0.000904971, 0.000978856, 0.00105157, 0.00112354, 0.001195205, 0.001267011, 0.001343575, 0.001429673, 0.001525798, 0.001632196, 0.001750039, 0.001878667, 0.002018277, 0.002169033], False, 3, [1, 1, 1, 1, 1, 1, 1, 1, 1, 1, 1, 1, 1, 1, 1, 1, 1, 1, 1, 1, 1, 1, 1, 1, 1, 1, 1], False), False)
sketch6.addGeometry(Part.BSplineCurve([V(-3.786061, 2.482227, 0), V(-3.74376, 2.482139, 0), V(-3.662418, 2.481972, 0), V(-3.545524, 2.479395, 0), V(-3.43876, 2.473911, 0), V(-3.342095, 2.469305, 0), V(-3.255659, 2.460391, 0), V(-3.179084, 2.451105, 0), V(-3.112639, 2.439268, 0), V(-3.037, 2.421656, 0), V(-2.949905, 2.391263, 0), V(-2.849617, 2.342266, 0), V(-2.751435, 2.280064, 0), V(-2.65641, 2.206559, 0), V(-2.56822, 2.123508, 0), V(-2.49058, 2.033111, 0), V(-2.425979, 1.935785, 0), V(-2.373746, 1.831978, 0), V(-2.333526, 1.720595, 0), V(-2.305098, 1.601373, 0), V(-2.287009, 1.473631, 0), V(-2.285194, 1.385502, 0), V(-2.284258, 1.340099, 0)], [4, 1, 1, 1, 1, 1, 1, 1, 1, 1, 1, 1, 1, 1, 1, 1, 1, 1, 1, 1, 4], [0, 0.000126905, 0.000244026, 0.000350709, 0.000447627, 0.000534274, 0.000611324, 0.000678989, 0.000736639, 0.000844176, 0.000954866, 0.001070804, 0.001192252, 0.001314756, 0.001433618, 0.001548931, 0.001664318, 0.001781424, 0.001903351, 0.002031459, 0.002167592], False, 3, [1, 1, 1, 1, 1, 1, 1, 1, 1, 1, 1, 1, 1, 1, 1, 1, 1, 1, 1, 1, 1, 1, 1], False), False)
sketch6.addGeometry(Part.LineSegment(V(-3.786061, 2.482227, 0), V(-5.874002, 2.482227, 0)), False)
sketch6.addGeometry(Part.LineSegment(V(-5.874002, 2.482227, 0), V(-5.874002, 1.854021, 0)), False)
sketch6.addGeometry(Part.LineSegment(V(-5.874002, 1.854021, 0), V(-3.680192, 1.854021, 0)), False)
sketch6.addGeometry(Part.BSplineCurve([V(-2.912464, 1.326077, 0), V(-2.913291, 1.354433, 0), V(-2.914904, 1.409722, 0), V(-2.930742, 1.489247, 0), V(-2.95596, 1.562928, 0), V(-2.991952, 1.629204, 0), V(-3.035096, 1.688009, 0), V(-3.084293, 1.737786, 0), V(-3.139642, 1.77707, 0), V(-3.190706, 1.802674, 0), V(-3.237706, 1.817048, 0), V(-3.279697, 1.82783, 0), V(-3.329019, 1.835659, 0), V(-3.385328, 1.842989, 0), V(-3.449035, 1.847145, 0), V(-3.519806, 1.851877, 0), V(-3.597686, 1.853574, 0), V(-3.651914, 1.853868, 0), V(-3.680192, 1.854021, 0)], [4, 1, 1, 1, 1, 1, 1, 1, 1, 1, 1, 1, 1, 1, 1, 1, 4], [0, 0.000084978, 0.000165692, 0.000242191, 0.000317789, 0.000390988, 0.000460396, 0.00052674, 0.000593843, 0.00063065, 0.000674012, 0.000723806, 0.000780333, 0.000844323, 0.000915261, 0.000993114, 0.001077953], False, 3, [1, 1, 1, 1, 1, 1, 1, 1, 1, 1, 1, 1, 1, 1, 1, 1, 1, 1, 1], False), False)
sketch6.addGeometry(Part.BSplineCurve([V(-3.596758, 0.82197, 0), V(-3.573149, 0.822006, 0), V(-3.527548, 0.822074, 0), V(-3.462123, 0.825359, 0), V(-3.40176, 0.828454, 0), V(-3.34695, 0.833721, 0), V(-3.297521, 0.841983, 0), V(-3.253292, 0.849696, 0), V(-3.214657, 0.860271, 0), V(-3.17065, 0.876107, 0), V(-3.121213, 0.90083, 0), V(-3.069105, 0.940044, 0), V(-3.022724, 0.986872, 0), V(-2.98378, 1.04202, 0), V(-2.950841, 1.10359, 0), V(-2.929055, 1.172796, 0), V(-2.914277, 1.247388, 0), V(-2.913079, 1.299357, 0), V(-2.912464, 1.326077, 0)], [4, 1, 1, 1, 1, 1, 1, 1, 1, 1, 1, 1, 1, 1, 1, 1, 4], [0, 0.000070817, 0.000136782, 0.00019648, 0.000252152, 0.000301833, 0.000346798, 0.000386768, 0.00042181, 0.000487029, 0.000551673, 0.000616621, 0.000683943, 0.000753563, 0.000825177, 0.000900807, 0.000980846], False, 3, [1, 1, 1, 1, 1, 1, 1, 1, 1, 1, 1, 1, 1, 1, 1, 1, 1, 1, 1], False), False)
sketch6.addGeometry(Part.LineSegment(V(-3.596758, 0.82197, 0), V(-5.874002, 0.82197, 0)), False)
sketch6.addGeometry(Part.LineSegment(V(-5.874002, 4.81556, 0), V(-5.874002, 2.930945, 0)), False)
sketch6.addGeometry(Part.LineSegment(V(-5.874002, 2.930945, 0), V(-5.245797, 2.930945, 0)), False)
sketch6.addGeometry(Part.LineSegment(V(-5.245797, 2.930945, 0), V(-5.245797, 3.55915, 0)), False)
sketch6.addGeometry(Part.LineSegment(V(-5.245797, 3.55915, 0), V(-2.374002, 3.55915, 0)), False)
sketch6.addGeometry(Part.LineSegment(V(-2.374002, 3.55915, 0), V(-2.374002, 4.187355, 0)), False)
sketch6.addGeometry(Part.LineSegment(V(-2.374002, 4.187355, 0), V(-5.245797, 4.187355, 0)), False)
sketch6.addGeometry(Part.LineSegment(V(-5.245797, 4.187355, 0), V(-5.245797, 4.81556, 0)), False)
sketch6.addGeometry(Part.LineSegment(V(-5.245797, 4.81556, 0), V(-5.874002, 4.81556, 0)), False)
sketch6.addConstraint(Sketcher.Constraint("Block", 0))
sketch6.addConstraint(Sketcher.Constraint("Block", 1))
sketch6.addConstraint(Sketcher.Constraint("Block", 2))
sketch6.addConstraint(Sketcher.Constraint("Block", 3))
sketch6.addConstraint(Sketcher.Constraint("Block", 4))
sketch6.addConstraint(Sketcher.Constraint("Block", 5))
sketch6.addConstraint(Sketcher.Constraint("Block", 6))
sketch6.addConstraint(Sketcher.Constraint("Block", 7))
sketch6.addConstraint(Sketcher.Constraint("Block", 8))
sketch6.addConstraint(Sketcher.Constraint("Block", 11))
sketch6.addConstraint(Sketcher.Constraint("Block", 12))
sketch6.addConstraint(Sketcher.Constraint("Block", 16))
sketch6.addConstraint(Sketcher.Constraint("Block", 17))
sketch6.addConstraint(Sketcher.Constraint("Coincident", 9, 2, 10, 1))
sketch6.addConstraint(Sketcher.Constraint("Coincident", 10, 2, 11, 2))
sketch6.addConstraint(Sketcher.Constraint("Coincident", 12, 1, 13, 1))
sketch6.addConstraint(Sketcher.Constraint("Coincident", 13, 2, 14, 1))
sketch6.addConstraint(Sketcher.Constraint("Coincident", 14, 2, 15, 1))
sketch6.addConstraint(Sketcher.Constraint("Coincident", 15, 2, 16, 2))
sketch6.addConstraint(Sketcher.Constraint("Coincident", 17, 1, 18, 1))
sketch6.addConstraint(Sketcher.Constraint("Coincident", 18, 2, 9, 1))
sketch6.addConstraint(Sketcher.Constraint("Coincident", 19, 2, 20, 1))
sketch6.addConstraint(Sketcher.Constraint("Coincident", 20, 2, 21, 1))
sketch6.addConstraint(Sketcher.Constraint("Coincident", 21, 2, 22, 1))
sketch6.addConstraint(Sketcher.Constraint("Coincident", 22, 2, 23, 1))
sketch6.addConstraint(Sketcher.Constraint("Coincident", 23, 2, 24, 1))
sketch6.addConstraint(Sketcher.Constraint("Coincident", 24, 2, 25, 1))
sketch6.addConstraint(Sketcher.Constraint("Coincident", 25, 2, 26, 1))
sketch6.addConstraint(Sketcher.Constraint("Coincident", 26, 2, 19, 1))
sketch6.addConstraint(Sketcher.Constraint("Vertical", 9))
sketch6.addConstraint(Sketcher.Constraint("Horizontal", 10))
sketch6.addConstraint(Sketcher.Constraint("Horizontal", 13))
sketch6.addConstraint(Sketcher.Constraint("Vertical", 14))
sketch6.addConstraint(Sketcher.Constraint("Horizontal", 15))
sketch6.addConstraint(Sketcher.Constraint("Horizontal", 18))
sketch6.addConstraint(Sketcher.Constraint("Vertical", 19))
sketch6.addConstraint(Sketcher.Constraint("Horizontal", 20))
sketch6.addConstraint(Sketcher.Constraint("Vertical", 21))
sketch6.addConstraint(Sketcher.Constraint("Horizontal", 22))
sketch6.addConstraint(Sketcher.Constraint("Vertical", 23))
sketch6.addConstraint(Sketcher.Constraint("Horizontal", 24))
sketch6.addConstraint(Sketcher.Constraint("Vertical", 25))
sketch6.addConstraint(Sketcher.Constraint("Horizontal", 26))
sketch6.addConstraint(Sketcher.Constraint("DistanceX", 19, 2, 22, 2, Q("3.5 mm")))
sketch6.addConstraint(Sketcher.Constraint("DistanceX", 10, 1, 10, 2, Q("2.087941 mm")))
sketch6.addConstraint(Sketcher.Constraint("DistanceX", 13, 2, 13, 1, Q("2.087941 mm")))
sketch6.addConstraint(Sketcher.Constraint("DistanceX", 20, 1, 20, 2, Q("0.628205 mm")))
sketch6.addConstraint(Sketcher.Constraint("DistanceX", 24, 2, 24, 1, Q("2.871795 mm")))
sketch6.addConstraint(Sketcher.Constraint("DistanceY", 19, 2, 19, 1, Q("1.884615 mm")))
sketch6.addConstraint(Sketcher.Constraint("DistanceY", 21, 1, 21, 2, Q("0.628205 mm")))
sketch6.addConstraint(Sketcher.Constraint("DistanceY", 23, 1, 23, 2, Q("0.628205 mm")))
sketch6.addConstraint(Sketcher.Constraint("DistanceY", -1, 1, 21, 2, Q("3.55915 mm")))
sketch6.addConstraint(Sketcher.Constraint("DistanceX", 19, 2, 15, 2, Q("2.19381 mm")))
pocket4 = doc.addObject("PartDesign::Pocket", "Pocket003")
body.addObject(pocket4)
pocket4.Profile = sketch6
pocket4.setExpression("Length", "Params.pocket4_length")
doc.recompute()

chamfer2 = doc.addObject("PartDesign::Chamfer", "Chamfer001")
body.addObject(chamfer2)
chamfer2.Base = (pocket4, edges_at(pocket4, [(-25, 0, -9.75), (-8.951, 12.285, -9.75), (-8.951, -12.285, -9.75)]))
chamfer2.setExpression("Size", "Params.chamfer2_size")

sketch7 = doc.addObject("Sketcher::SketchObject", "Sketch006")
body.addObject(sketch7)
sketch7.AttachmentSupport = (doc.XZ_Plane, [""])
sketch7.MapMode = "FlatFace"
sketch7.AttachmentOffset = App.Placement(V(0, 0, -15), App.Rotation())
sketch7.addGeometry(Part.LineSegment(V(0, -9.8, 0), V(0, -9.2, 0)), False)
sketch7.addGeometry(Part.LineSegment(V(0, -9.2, 0), V(9.4, -9.8, 0)), False)
sketch7.addGeometry(Part.LineSegment(V(9.4, -9.8, 0), V(0, -9.8, 0)), False)
sketch7.addConstraint(Sketcher.Constraint("Coincident", 0, 2, 1, 1))
sketch7.addConstraint(Sketcher.Constraint("Coincident", 1, 2, 2, 1))
sketch7.addConstraint(Sketcher.Constraint("Coincident", 2, 2, 0, 1))
sketch7.addConstraint(Sketcher.Constraint("Vertical", 0))
sketch7.addConstraint(Sketcher.Constraint("Horizontal", 2))
sketch7.addConstraint(Sketcher.Constraint("PointOnObject", 0, 2, -2))
sketch7.addConstraint(Sketcher.Constraint("DistanceY", 0, 1, 0, 2, Q("0.6 mm")))
sketch7.addConstraint(Sketcher.Constraint("DistanceY", 0, 2, -1, 1, Q("9.15 mm")))
sketch7.addConstraint(Sketcher.Constraint("DistanceX", 2, 2, 2, 1, Q("9.382447 mm")))
sketch7.setExpression("Constraints[6]", "Params.sketch7_height")
pocket5 = doc.addObject("PartDesign::Pocket", "Pocket004")
body.addObject(pocket5)
pocket5.Profile = sketch7
pocket5.Type = "ThroughAll"
pocket5.Reversed = True

doc.recompute()
